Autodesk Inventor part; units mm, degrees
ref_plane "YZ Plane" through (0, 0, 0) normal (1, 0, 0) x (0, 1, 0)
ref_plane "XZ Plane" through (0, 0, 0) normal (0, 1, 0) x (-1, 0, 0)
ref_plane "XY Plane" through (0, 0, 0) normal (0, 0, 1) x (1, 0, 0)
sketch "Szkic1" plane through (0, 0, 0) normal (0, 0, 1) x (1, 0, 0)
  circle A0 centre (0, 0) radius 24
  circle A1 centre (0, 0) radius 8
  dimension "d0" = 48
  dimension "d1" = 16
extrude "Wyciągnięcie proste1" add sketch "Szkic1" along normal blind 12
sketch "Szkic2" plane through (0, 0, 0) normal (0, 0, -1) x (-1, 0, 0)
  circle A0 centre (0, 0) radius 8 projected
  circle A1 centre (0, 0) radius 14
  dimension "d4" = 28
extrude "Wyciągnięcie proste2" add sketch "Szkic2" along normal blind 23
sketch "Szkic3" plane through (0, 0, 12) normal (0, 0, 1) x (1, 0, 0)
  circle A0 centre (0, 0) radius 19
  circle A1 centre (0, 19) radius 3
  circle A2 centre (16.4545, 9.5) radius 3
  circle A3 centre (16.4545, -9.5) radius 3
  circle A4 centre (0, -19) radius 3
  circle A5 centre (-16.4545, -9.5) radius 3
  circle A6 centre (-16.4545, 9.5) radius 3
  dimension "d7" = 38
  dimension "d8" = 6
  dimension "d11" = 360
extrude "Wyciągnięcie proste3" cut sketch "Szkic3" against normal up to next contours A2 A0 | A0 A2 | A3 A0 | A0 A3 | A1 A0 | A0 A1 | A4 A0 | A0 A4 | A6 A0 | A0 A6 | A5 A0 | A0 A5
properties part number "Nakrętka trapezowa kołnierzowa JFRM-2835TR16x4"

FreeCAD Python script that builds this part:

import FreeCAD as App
import Part
import Sketcher
Q = App.Units.Quantity

doc = App.newDocument("Part")
params = doc.addObject("Spreadsheet::Sheet", "Params")
for row, (alias, value) in enumerate([
    ("sketch1_diameter", "48 mm"),
    ("sketch1_diameter2", "16 mm"),
    ("pad1_length", "12 mm"),
    ("sketch2_diameter", "28 mm"),
    ("sketch2_diameter2", "16 mm"),
    ("pad2_length", "23 mm"),
    ("sketch3_diameter", "6 mm"),
    ("pocket1_length", "12 mm"),
], start=1):
    params.set(f"A{row}", alias)
    params.set(f"B{row}", "=" + value)
    params.setAlias(f"B{row}", alias)

body = doc.addObject("PartDesign::Body", "Body")

sketch1 = doc.addObject("Sketcher::SketchObject", "Sketch")
body.addObject(sketch1)
sketch1.AttachmentSupport = (doc.XY_Plane, [""])
sketch1.MapMode = "FlatFace"
sketch1.addGeometry([
    Part.Circle(App.Vector(0, 0, 0), App.Vector(0, 0, 1), 24),
    Part.Circle(App.Vector(0, 0, 0), App.Vector(0, 0, 1), 8),
], False)
sketch1.addConstraint([
    Sketcher.Constraint("Coincident", 0, 3, -1, 1),
    Sketcher.Constraint("Coincident", 1, 3, -1, 1),
    Sketcher.Constraint("Diameter", 0, Q("48 mm")),
    Sketcher.Constraint("Diameter", 1, Q("16 mm")),
])
sketch1.setExpression("Constraints[2]", "Params.sketch1_diameter")
sketch1.setExpression("Constraints[3]", "Params.sketch1_diameter2")
pad1 = doc.addObject("PartDesign::Pad", "Pad")
body.addObject(pad1)
pad1.Profile = sketch1
pad1.setExpression("Length", "Params.pad1_length")

sketch2 = doc.addObject("Sketcher::SketchObject", "Sketch001")
body.addObject(sketch2)
sketch2.AttachmentSupport = (doc.XY_Plane, [""])
sketch2.MapMode = "FlatFace"
sketch2.addGeometry([
    Part.Circle(App.Vector(0, 0, 0), App.Vector(0, 0, 1), 14),
    Part.Circle(App.Vector(0, 0, 0), App.Vector(0, 0, 1), 8),
], False)
sketch2.addConstraint([
    Sketcher.Constraint("Coincident", 0, 3, -1, 1),
    Sketcher.Constraint("Coincident", 1, 3, -1, 1),
    Sketcher.Constraint("Diameter", 0, Q("28 mm")),
    Sketcher.Constraint("Diameter", 1, Q("16 mm")),
])
sketch2.setExpression("Constraints[2]", "Params.sketch2_diameter")
sketch2.setExpression("Constraints[3]", "Params.sketch2_diameter2")
pad2 = doc.addObject("PartDesign::Pad", "Pad001")
body.addObject(pad2)
pad2.Profile = sketch2
pad2.setExpression("Length", "Params.pad2_length")
pad2.Reversed = True

sketch3 = doc.addObject("Sketcher::SketchObject", "Sketch002")
body.addObject(sketch3)
sketch3.AttachmentSupport = (doc.XY_Plane, [""])
sketch3.MapMode = "FlatFace"
sketch3.AttachmentOffset = App.Placement(App.Vector(0, 0, 12), App.Rotation())
sketch3.addGeometry([
    Part.Circle(App.Vector(16.5, 9.5, 0), App.Vector(0, 0, 1), 3),
    Part.Circle(App.Vector(16.5, -9.5, 0), App.Vector(0, 0, 1), 3),
    Part.Circle(App.Vector(0, 19, 0), App.Vector(0, 0, 1), 3),
    Part.Circle(App.Vector(0, -19, 0), App.Vector(0, 0, 1), 3),
    Part.Circle(App.Vector(-16.5, 9.5, 0), App.Vector(0, 0, 1), 3),
    Part.Circle(App.Vector(-16.5, -9.5, 0), App.Vector(0, 0, 1), 3),
], False)
sketch3.addConstraint([
    Sketcher.Constraint("Equal", 0, 1),
    Sketcher.Constraint("Equal", 1, 2),
    Sketcher.Constraint("Equal", 2, 3),
    Sketcher.Constraint("Equal", 3, 4),
    Sketcher.Constraint("Equal", 4, 5),
    Sketcher.Constraint("Symmetric", 2, 3, 3, 3, -1, 1),
    Sketcher.Constraint("Symmetric", 1, 3, 4, 3, -1, 1),
    Sketcher.Constraint("Symmetric", 0, 3, 5, 3, -1, 1),
    Sketcher.Constraint("Symmetric", 0, 3, 4, 3, -2),
    Sketcher.Constraint("PointOnObject", 2, 3, -2),
    Sketcher.Constraint("Diameter", 0, Q("6 mm")),
    Sketcher.Constraint("DistanceY", 3, 3, 2, 3, Q("38 mm")),
    Sketcher.Constraint("DistanceY", 1, 3, 0, 3, Q("19 mm")),
    Sketcher.Constraint("DistanceX", 4, 3, 0, 3, Q("32.909 mm")),
])
sketch3.setExpression("Constraints[10]", "Params.sketch3_diameter")
pocket1 = doc.addObject("PartDesign::Pocket", "Pocket")
body.addObject(pocket1)
pocket1.Profile = sketch3
pocket1.setExpression("Length", "Params.pocket1_length")

doc.recompute()
